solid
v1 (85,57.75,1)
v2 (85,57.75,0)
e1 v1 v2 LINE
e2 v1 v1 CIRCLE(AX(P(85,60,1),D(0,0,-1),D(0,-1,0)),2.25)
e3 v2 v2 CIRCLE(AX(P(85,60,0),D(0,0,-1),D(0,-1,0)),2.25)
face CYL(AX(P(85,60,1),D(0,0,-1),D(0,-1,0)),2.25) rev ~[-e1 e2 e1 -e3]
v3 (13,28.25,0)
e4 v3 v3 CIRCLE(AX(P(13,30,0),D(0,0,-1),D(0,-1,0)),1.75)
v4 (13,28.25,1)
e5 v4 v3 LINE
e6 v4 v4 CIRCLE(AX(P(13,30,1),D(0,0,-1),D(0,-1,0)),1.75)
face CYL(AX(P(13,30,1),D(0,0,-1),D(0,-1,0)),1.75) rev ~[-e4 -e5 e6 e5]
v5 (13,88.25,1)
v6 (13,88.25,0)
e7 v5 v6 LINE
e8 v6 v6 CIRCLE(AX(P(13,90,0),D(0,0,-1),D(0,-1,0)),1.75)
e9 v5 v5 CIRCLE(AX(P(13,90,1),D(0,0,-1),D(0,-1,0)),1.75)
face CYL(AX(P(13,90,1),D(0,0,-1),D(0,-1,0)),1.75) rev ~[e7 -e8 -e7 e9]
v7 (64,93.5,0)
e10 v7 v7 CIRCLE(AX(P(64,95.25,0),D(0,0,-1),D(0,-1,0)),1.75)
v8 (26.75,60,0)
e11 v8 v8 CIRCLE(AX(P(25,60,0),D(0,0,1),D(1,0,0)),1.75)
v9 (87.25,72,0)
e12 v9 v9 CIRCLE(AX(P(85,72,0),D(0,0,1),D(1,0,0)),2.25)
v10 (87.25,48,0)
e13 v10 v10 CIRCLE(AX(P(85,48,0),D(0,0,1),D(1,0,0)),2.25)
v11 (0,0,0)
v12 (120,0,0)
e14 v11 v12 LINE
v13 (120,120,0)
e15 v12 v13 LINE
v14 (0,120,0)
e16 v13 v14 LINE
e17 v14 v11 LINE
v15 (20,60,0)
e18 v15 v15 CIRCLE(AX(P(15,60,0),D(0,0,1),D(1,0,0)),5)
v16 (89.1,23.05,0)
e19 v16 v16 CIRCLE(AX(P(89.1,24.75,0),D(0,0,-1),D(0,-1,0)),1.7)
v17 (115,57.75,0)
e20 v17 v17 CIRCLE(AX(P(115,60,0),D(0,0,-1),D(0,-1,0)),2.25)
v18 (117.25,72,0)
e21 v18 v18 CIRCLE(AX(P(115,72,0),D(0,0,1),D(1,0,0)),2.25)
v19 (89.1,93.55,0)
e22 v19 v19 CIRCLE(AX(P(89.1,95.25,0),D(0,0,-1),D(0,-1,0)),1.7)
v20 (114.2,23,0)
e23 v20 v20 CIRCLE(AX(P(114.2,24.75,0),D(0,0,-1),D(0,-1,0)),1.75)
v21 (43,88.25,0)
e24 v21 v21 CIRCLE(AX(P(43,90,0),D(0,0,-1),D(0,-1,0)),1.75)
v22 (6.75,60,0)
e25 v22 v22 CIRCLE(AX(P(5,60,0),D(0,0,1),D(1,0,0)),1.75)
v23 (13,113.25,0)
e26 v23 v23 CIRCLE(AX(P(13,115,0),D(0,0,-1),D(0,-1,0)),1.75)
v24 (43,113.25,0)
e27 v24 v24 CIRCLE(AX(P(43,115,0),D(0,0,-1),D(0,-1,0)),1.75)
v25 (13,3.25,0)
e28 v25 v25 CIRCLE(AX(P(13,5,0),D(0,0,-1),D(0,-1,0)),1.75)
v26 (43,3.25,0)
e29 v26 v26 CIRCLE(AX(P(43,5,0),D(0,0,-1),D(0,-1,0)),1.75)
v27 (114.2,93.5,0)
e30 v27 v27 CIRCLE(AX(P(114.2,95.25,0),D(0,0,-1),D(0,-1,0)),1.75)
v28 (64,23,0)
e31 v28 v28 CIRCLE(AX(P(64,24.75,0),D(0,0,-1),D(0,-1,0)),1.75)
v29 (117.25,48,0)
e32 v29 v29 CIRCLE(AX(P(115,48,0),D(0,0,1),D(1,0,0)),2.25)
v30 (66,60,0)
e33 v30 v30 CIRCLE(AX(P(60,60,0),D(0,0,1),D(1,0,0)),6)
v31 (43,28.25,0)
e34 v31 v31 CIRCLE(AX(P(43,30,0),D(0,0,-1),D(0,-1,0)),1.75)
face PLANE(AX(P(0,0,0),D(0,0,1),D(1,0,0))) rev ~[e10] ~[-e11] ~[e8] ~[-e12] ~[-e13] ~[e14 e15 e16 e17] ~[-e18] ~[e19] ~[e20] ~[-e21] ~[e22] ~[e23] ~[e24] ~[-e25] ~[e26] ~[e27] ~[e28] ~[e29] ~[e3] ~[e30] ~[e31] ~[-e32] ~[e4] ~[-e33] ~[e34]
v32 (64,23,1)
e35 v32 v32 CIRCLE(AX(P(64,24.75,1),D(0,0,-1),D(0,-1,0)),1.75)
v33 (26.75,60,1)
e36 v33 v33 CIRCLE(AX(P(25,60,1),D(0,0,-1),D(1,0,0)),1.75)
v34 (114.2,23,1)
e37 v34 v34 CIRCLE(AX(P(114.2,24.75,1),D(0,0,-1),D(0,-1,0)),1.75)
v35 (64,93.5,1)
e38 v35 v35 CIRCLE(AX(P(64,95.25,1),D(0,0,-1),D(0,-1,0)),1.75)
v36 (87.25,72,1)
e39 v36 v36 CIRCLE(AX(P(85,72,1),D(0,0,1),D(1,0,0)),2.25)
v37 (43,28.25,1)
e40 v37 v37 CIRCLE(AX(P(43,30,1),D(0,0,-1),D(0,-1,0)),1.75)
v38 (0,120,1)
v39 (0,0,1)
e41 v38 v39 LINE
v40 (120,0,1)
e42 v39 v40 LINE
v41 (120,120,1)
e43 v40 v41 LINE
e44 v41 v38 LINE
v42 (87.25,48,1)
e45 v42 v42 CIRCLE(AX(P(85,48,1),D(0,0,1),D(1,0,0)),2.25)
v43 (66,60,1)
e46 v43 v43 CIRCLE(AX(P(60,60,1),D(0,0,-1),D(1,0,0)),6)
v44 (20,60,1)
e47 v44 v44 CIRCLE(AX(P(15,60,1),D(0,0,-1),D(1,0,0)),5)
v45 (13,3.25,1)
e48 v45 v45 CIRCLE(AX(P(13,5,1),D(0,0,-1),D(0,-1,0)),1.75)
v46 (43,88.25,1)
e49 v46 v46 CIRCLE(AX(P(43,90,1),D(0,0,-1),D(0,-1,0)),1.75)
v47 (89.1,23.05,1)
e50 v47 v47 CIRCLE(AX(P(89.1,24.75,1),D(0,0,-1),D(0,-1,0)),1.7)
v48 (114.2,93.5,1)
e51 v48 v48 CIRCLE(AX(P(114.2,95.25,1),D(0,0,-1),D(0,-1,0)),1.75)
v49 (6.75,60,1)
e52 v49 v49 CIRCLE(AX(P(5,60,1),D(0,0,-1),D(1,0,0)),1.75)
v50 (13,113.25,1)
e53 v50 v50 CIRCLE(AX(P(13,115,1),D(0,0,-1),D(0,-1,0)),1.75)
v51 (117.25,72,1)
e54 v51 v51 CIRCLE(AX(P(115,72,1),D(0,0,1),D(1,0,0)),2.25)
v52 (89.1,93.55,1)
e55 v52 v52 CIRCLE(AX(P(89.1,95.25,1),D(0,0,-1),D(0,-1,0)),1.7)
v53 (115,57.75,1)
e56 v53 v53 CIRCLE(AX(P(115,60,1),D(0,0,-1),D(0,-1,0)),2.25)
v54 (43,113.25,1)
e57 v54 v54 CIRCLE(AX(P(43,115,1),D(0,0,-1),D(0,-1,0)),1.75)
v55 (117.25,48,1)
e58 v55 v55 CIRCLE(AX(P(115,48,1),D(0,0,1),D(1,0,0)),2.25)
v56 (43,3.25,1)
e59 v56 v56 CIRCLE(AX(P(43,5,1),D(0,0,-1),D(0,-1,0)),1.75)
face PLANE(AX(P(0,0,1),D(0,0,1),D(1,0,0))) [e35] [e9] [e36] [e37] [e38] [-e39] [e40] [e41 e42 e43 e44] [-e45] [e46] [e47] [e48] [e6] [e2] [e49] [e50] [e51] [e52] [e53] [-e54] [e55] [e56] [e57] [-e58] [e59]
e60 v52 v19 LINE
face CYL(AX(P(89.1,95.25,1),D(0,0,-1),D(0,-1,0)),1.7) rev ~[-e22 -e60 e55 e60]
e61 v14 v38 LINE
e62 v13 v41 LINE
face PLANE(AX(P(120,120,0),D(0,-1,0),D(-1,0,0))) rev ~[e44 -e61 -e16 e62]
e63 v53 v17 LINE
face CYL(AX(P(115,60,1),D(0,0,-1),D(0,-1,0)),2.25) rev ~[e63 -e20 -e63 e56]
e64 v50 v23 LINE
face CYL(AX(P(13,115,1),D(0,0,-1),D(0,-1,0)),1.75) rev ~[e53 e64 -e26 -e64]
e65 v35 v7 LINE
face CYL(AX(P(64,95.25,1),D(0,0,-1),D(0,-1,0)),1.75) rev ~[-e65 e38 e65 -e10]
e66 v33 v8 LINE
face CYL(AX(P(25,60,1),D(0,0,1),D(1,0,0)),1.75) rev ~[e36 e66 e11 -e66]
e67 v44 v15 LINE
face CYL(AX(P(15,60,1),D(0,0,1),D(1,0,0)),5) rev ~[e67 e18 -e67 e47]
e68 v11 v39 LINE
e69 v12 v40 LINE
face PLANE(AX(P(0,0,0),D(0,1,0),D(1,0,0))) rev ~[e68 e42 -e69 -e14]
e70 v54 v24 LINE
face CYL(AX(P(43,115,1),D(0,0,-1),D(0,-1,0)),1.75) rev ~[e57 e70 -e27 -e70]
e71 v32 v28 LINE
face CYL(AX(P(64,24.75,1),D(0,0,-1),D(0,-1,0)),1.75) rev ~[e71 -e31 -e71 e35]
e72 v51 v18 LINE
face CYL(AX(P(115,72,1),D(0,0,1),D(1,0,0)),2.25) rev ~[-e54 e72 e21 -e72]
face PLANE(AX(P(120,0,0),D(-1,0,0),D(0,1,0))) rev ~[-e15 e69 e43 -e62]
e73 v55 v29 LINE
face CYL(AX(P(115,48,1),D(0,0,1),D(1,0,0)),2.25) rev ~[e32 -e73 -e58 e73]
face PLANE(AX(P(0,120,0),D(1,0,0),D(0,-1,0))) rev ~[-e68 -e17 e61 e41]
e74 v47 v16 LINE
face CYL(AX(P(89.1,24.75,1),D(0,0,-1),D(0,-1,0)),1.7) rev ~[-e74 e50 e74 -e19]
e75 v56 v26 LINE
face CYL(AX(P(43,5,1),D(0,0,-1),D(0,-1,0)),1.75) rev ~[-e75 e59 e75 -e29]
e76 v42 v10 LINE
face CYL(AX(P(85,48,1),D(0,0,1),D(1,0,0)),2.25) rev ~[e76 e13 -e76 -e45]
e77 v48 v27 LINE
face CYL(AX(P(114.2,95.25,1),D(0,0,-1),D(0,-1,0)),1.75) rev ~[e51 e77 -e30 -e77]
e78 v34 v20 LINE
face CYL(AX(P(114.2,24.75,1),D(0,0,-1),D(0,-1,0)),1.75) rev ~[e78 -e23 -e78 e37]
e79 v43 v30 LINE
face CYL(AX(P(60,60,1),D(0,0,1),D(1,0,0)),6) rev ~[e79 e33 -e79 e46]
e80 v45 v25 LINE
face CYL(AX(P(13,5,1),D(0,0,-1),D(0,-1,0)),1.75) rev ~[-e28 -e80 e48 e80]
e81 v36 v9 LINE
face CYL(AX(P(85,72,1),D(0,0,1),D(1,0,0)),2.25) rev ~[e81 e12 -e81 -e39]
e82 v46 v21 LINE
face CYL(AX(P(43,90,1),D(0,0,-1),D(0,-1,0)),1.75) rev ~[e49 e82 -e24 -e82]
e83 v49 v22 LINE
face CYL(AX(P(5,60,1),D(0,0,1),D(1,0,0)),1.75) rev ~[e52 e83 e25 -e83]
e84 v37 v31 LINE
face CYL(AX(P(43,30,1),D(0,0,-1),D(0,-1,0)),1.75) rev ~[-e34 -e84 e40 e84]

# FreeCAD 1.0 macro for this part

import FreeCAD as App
import Part
import Sketcher

V = App.Vector
Q = App.Units.Quantity

doc = App.newDocument("Part")
body = doc.addObject("PartDesign::Body", "Body")

sketch1 = doc.addObject("Sketcher::SketchObject", "Sketch")
body.addObject(sketch1)
sketch1.AttachmentSupport = (doc.XY_Plane, [""])
sketch1.MapMode = "FlatFace"
sketch1.addGeometry([
    Part.LineSegment(V(0, 120, 0), V(0, 0, 0)),
    Part.LineSegment(V(0, 0, 0), V(120, 0, 0)),
    Part.LineSegment(V(120, 0, 0), V(120, 120, 0)),
    Part.LineSegment(V(120, 120, 0), V(0, 120, 0)),
], False)
sketch1.addConstraint([
    Sketcher.Constraint("Coincident", 0, 2, 1, 1),
    Sketcher.Constraint("Coincident", 1, 2, 2, 1),
    Sketcher.Constraint("Coincident", 2, 2, 3, 1),
    Sketcher.Constraint("Coincident", 3, 2, 0, 1),
    Sketcher.Constraint("Vertical", 0),
    Sketcher.Constraint("Horizontal", 1),
    Sketcher.Constraint("Vertical", 2),
    Sketcher.Constraint("Horizontal", 3),
    Sketcher.Constraint("Coincident", 0, 2, -1, 1),
    Sketcher.Constraint("Equal", 3, 0),
    Sketcher.Constraint("DistanceX", 1, 1, 1, 2, Q("120 mm")),
])
pad1 = doc.addObject("PartDesign::Pad", "Pad")
body.addObject(pad1)
pad1.Profile = sketch1
pad1.Length = 1

sketch2 = doc.addObject("Sketcher::SketchObject", "Sketch001")
body.addObject(sketch2)
sketch2.AttachmentSupport = (doc.XY_Plane, [""])
sketch2.MapMode = "FlatFace"
sketch2.AttachmentOffset = App.Placement(V(0, 0, 1), App.Rotation())
sketch2.addGeometry([
    Part.Circle(V(5, 60, 0), V(0, 0, 1), 1.8),
    Part.Circle(V(60, 60, 0), V(0, 0, 1), 6),
    Part.Circle(V(15, 60, 0), V(0, 0, 1), 5),
    Part.Circle(V(25, 60, 0), V(0, 0, 1), 1.8),
    Part.Circle(V(115, 95.2, 0), V(0, 0, 1), 1.5),
    Part.Circle(V(85, 95.2, 0), V(0, 0, 1), 1.5),
], False)
sketch2.addConstraint([
    Sketcher.Constraint("Equal", 0, 3),
    Sketcher.Constraint("Equal", 4, 5),
    Sketcher.Constraint("Horizontal", 0, 3, 1, 3),
    Sketcher.Constraint("Horizontal", 1, 3, 2, 3),
    Sketcher.Constraint("Horizontal", 2, 3, 3, 3),
    Sketcher.Constraint("Horizontal", 4, 3, 5, 3),
    Sketcher.Constraint("Diameter", 1, Q("12 mm")),
    Sketcher.Constraint("Diameter", 2, Q("10 mm")),
    Sketcher.Constraint("Diameter", 4, Q("3 mm")),
    Sketcher.Constraint("Diameter", 0, Q("3.5 mm")),
    Sketcher.Constraint("DistanceX", -1, 1, 0, 3, Q("5 mm")),
    Sketcher.Constraint("DistanceX", -1, 1, 2, 3, Q("15 mm")),
    Sketcher.Constraint("DistanceX", 2, 3, 3, 3, Q("10 mm")),
    Sketcher.Constraint("DistanceX", 5, 3, 4, 3, Q("30 mm")),
    Sketcher.Constraint("DistanceY", -1, 1, 0, 3, Q("60 mm")),
    Sketcher.Constraint("DistanceX", -1, 1, 1, 3, Q("60 mm")),
    Sketcher.Constraint("DistanceX", -1, 1, 4, 3, Q("115 mm")),
    Sketcher.Constraint("DistanceY", -1, 1, 4, 3, Q("95.25 mm")),
])
pocket1 = doc.addObject("PartDesign::Pocket", "Pocket")
body.addObject(pocket1)
pocket1.Profile = sketch2
pocket1.Type = "ThroughAll"

sketch3 = doc.addObject("Sketcher::SketchObject", "Sketch002")
body.addObject(sketch3)
sketch3.AttachmentSupport = (doc.XY_Plane, [""])
sketch3.MapMode = "FlatFace"
sketch3.AttachmentOffset = App.Placement(V(0, 0, 1), App.Rotation())
sketch3.addGeometry([
    Part.Circle(V(13, 115, 0), V(0, 0, 1), 1.8),
    Part.Circle(V(43, 115, 0), V(0, 0, 1), 1.8),
    Part.Circle(V(13, 90, 0), V(0, 0, 1), 1.8),
    Part.Circle(V(43, 90, 0), V(0, 0, 1), 1.8),
    Part.Circle(V(13, 5, 0), V(0, 0, 1), 1.8),
    Part.Circle(V(43, 5, 0), V(0, 0, 1), 1.8),
    Part.Circle(V(43, 30, 0), V(0, 0, 1), 1.8),
    Part.Circle(V(13, 30, 0), V(0, 0, 1), 1.8),
], False)
sketch3.addConstraint([
    Sketcher.Constraint("Equal", 0, 1),
    Sketcher.Constraint("Equal", 1, 2),
    Sketcher.Constraint("Equal", 2, 3),
    Sketcher.Constraint("Equal", 3, 4),
    Sketcher.Constraint("Equal", 4, 5),
    Sketcher.Constraint("Equal", 5, 6),
    Sketcher.Constraint("Equal", 6, 7),
    Sketcher.Constraint("Horizontal", 0, 3, 1, 3),
    Sketcher.Constraint("Horizontal", 2, 3, 3, 3),
    Sketcher.Constraint("Horizontal", 4, 3, 5, 3),
    Sketcher.Constraint("Horizontal", 6, 3, 7, 3),
    Sketcher.Constraint("Vertical", 0, 3, 2, 3),
    Sketcher.Constraint("Vertical", 1, 3, 3, 3),
    Sketcher.Constraint("Vertical", 2, 3, 4, 3),
    Sketcher.Constraint("Vertical", 3, 3, 5, 3),
    Sketcher.Constraint("Vertical", 5, 3, 6, 3),
    Sketcher.Constraint("Vertical", 4, 3, 7, 3),
    Sketcher.Constraint("Diameter", 0, Q("3.5 mm")),
    Sketcher.Constraint("DistanceX", -1, 1, 0, 3, Q("13 mm")),
    Sketcher.Constraint("DistanceY", -1, 1, 0, 3, Q("115 mm")),
    Sketcher.Constraint("DistanceX", -1, 1, 1, 3, Q("43 mm")),
    Sketcher.Constraint("DistanceY", -1, 1, 2, 3, Q("90 mm")),
    Sketcher.Constraint("DistanceY", -1, 1, 4, 3, Q("5 mm")),
    Sketcher.Constraint("DistanceY", -1, 1, 6, 3, Q("30 mm")),
])
doc.recompute()
hole = doc.addObject("PartDesign::Hole", "Hole")
body.addObject(hole)
hole.Profile = sketch3
hole.ThreadType = "None"
hole.Diameter = 3.5
hole.DepthType = "ThroughAll"

sketch4 = doc.addObject("Sketcher::SketchObject", "Sketch003")
body.addObject(sketch4)
sketch4.AttachmentSupport = (doc.XY_Plane, [""])
sketch4.MapMode = "FlatFace"
sketch4.AttachmentOffset = App.Placement(V(0, 0, 1), App.Rotation())
sketch4.addGeometry([
    Part.Circle(V(85, 95.2, 0), V(0, 0, 1), 1.5),
    Part.Circle(V(115, 95.2, 0), V(0, 0, 1), 1.5),
], False)
sketch4.addConstraint([
    Sketcher.Constraint("Equal", 0, 1),
    Sketcher.Constraint("Horizontal", 0, 3, 1, 3),
    Sketcher.Constraint("Diameter", 0, Q("3 mm")),
    Sketcher.Constraint("DistanceX", -1, 1, 0, 3, Q("85 mm")),
    Sketcher.Constraint("DistanceX", -1, 1, 1, 3, Q("115 mm")),
    Sketcher.Constraint("DistanceY", -1, 1, 0, 3, Q("95.25 mm")),
])
pad2 = doc.addObject("PartDesign::Pad", "Pad001")
body.addObject(pad2)
pad2.Profile = sketch4
pad2.Length = 1
pad2.Reversed = True

sketch5 = doc.addObject("Sketcher::SketchObject", "Sketch004")
body.addObject(sketch5)
sketch5.AttachmentSupport = (doc.XY_Plane, [""])
sketch5.MapMode = "FlatFace"
sketch5.AttachmentOffset = App.Placement(V(0, 0, 1), App.Rotation())
sketch5.addGeometry([
    Part.Circle(V(64, 24.8, 0), V(0, 0, 1), 1.8),
    Part.Circle(V(114.2, 24.8, 0), V(0, 0, 1), 1.8),
    Part.Circle(V(85, 48, 0), V(0, 0, 1), 1.8),
    Part.Circle(V(115, 48, 0), V(0, 0, 1), 1.8),
    Part.Circle(V(85, 72, 0), V(0, 0, 1), 1.8),
    Part.Circle(V(115, 72, 0), V(0, 0, 1), 1.8),
    Part.Circle(V(64, 95.2, 0), V(0, 0, 1), 1.8),
    Part.Circle(V(114.2, 95.2, 0), V(0, 0, 1), 1.8),
], False)
sketch5.addConstraint([
    Sketcher.Constraint("Equal", 0, 1),
    Sketcher.Constraint("Equal", 1, 2),
    Sketcher.Constraint("Equal", 2, 3),
    Sketcher.Constraint("Equal", 3, 4),
    Sketcher.Constraint("Equal", 4, 5),
    Sketcher.Constraint("Equal", 5, 6),
    Sketcher.Constraint("Equal", 6, 7),
    Sketcher.Constraint("Horizontal", 0, 3, 1, 3),
    Sketcher.Constraint("Horizontal", 2, 3, 3, 3),
    Sketcher.Constraint("Horizontal", 4, 3, 5, 3),
    Sketcher.Constraint("Horizontal", 6, 3, 7, 3),
    Sketcher.Constraint("Vertical", 2, 3, 4, 3),
    Sketcher.Constraint("Vertical", 3, 3, 5, 3),
    Sketcher.Constraint("Vertical", 0, 3, 6, 3),
    Sketcher.Constraint("Vertical", 1, 3, 7, 3),
    Sketcher.Constraint("Diameter", 0, Q("3.5 mm")),
    Sketcher.Constraint("DistanceX", -1, 1, 0, 3, Q("64 mm")),
    Sketcher.Constraint("DistanceX", -1, 1, 2, 3, Q("85 mm")),
    Sketcher.Constraint("DistanceY", -1, 1, 2, 3, Q("48 mm")),
    Sketcher.Constraint("DistanceX", -1, 1, 3, 3, Q("115 mm")),
    Sketcher.Constraint("DistanceY", -1, 1, 4, 3, Q("72 mm")),
    Sketcher.Constraint("DistanceX", -1, 1, 1, 3, Q("114.2 mm")),
    Sketcher.Constraint("DistanceY", 0, 3, 6, 3, Q("70.5 mm")),
    Sketcher.Constraint("DistanceY", -1, 1, 0, 3, Q("24.75 mm")),
])
doc.recompute()
hole2 = doc.addObject("PartDesign::Hole", "Hole001")
body.addObject(hole2)
hole2.Profile = sketch5
hole2.ThreadType = "None"
hole2.Diameter = 3.5
hole2.DepthType = "ThroughAll"

sketch6 = doc.addObject("Sketcher::SketchObject", "Sketch005")
body.addObject(sketch6)
sketch6.AttachmentSupport = (doc.XY_Plane, [""])
sketch6.MapMode = "FlatFace"
sketch6.AttachmentOffset = App.Placement(V(0, 0, 1), App.Rotation())
sketch6.addGeometry([
    Part.Circle(V(85, 72, 0), V(0, 0, 1), 2.2),
    Part.Circle(V(115, 72, 0), V(0, 0, 1), 2.2),
    Part.Circle(V(115, 48, 0), V(0, 0, 1), 2.2),
    Part.Circle(V(85, 48, 0), V(0, 0, 1), 2.2),
], False)
sketch6.addConstraint([
    Sketcher.Constraint("Equal", 0, 1),
    Sketcher.Constraint("Equal", 1, 2),
    Sketcher.Constraint("Equal", 2, 3),
    Sketcher.Constraint("Horizontal", 0, 3, 1, 3),
    Sketcher.Constraint("Horizontal", 2, 3, 3, 3),
    Sketcher.Constraint("Vertical", 1, 3, 2, 3),
    Sketcher.Constraint("Vertical", 0, 3, 3, 3),
    Sketcher.Constraint("Diameter", 0, Q("4.5 mm")),
    Sketcher.Constraint("DistanceX", -1, 1, 0, 3, Q("85 mm")),
    Sketcher.Constraint("DistanceY", -1, 1, 0, 3, Q("72 mm")),
    Sketcher.Constraint("DistanceX", -1, 1, 1, 3, Q("115 mm")),
    Sketcher.Constraint("DistanceY", -1, 1, 2, 3, Q("48 mm")),
])
pocket2 = doc.addObject("PartDesign::Pocket", "Pocket001")
body.addObject(pocket2)
pocket2.Profile = sketch6
pocket2.Length = 1

sketch7 = doc.addObject("Sketcher::SketchObject", "Sketch006")
body.addObject(sketch7)
sketch7.AttachmentSupport = (doc.XY_Plane, [""])
sketch7.MapMode = "FlatFace"
sketch7.AttachmentOffset = App.Placement(V(0, 0, 1), App.Rotation())
sketch7.addGeometry([
    Part.Circle(V(85, 60, 0), V(0, 0, 1), 2.2),
    Part.Circle(V(115, 60, 0), V(0, 0, 1), 2.2),
], False)
sketch7.addConstraint([
    Sketcher.Constraint("Equal", 0, 1),
    Sketcher.Constraint("Horizontal", 0, 3, 1, 3),
    Sketcher.Constraint("Diameter", 0, Q("4.5 mm")),
    Sketcher.Constraint("DistanceX", -1, 1, 0, 3, Q("85 mm")),
    Sketcher.Constraint("DistanceY", -1, 1, 0, 3, Q("60 mm")),
    Sketcher.Constraint("DistanceX", -1, 1, 1, 3, Q("115 mm")),
])
doc.recompute()
hole3 = doc.addObject("PartDesign::Hole", "Hole002")
body.addObject(hole3)
hole3.Profile = sketch7
hole3.ThreadType = "None"
hole3.Diameter = 4.5
hole3.DepthType = "Dimension"
hole3.Depth = 1
hole3.DrillPoint = "Flat"

sketch8 = doc.addObject("Sketcher::SketchObject", "Sketch007")
body.addObject(sketch8)
sketch8.AttachmentSupport = (doc.XY_Plane, [""])
sketch8.MapMode = "FlatFace"
sketch8.AttachmentOffset = App.Placement(V(0, 0, 1), App.Rotation())
sketch8.addGeometry([
    Part.Circle(V(89.1, 95.2, 0), V(0, 0, 1), 1.7),
    Part.Circle(V(89.1, 24.8, 0), V(0, 0, 1), 1.7),
], False)
sketch8.addConstraint([
    Sketcher.Constraint("Equal", 0, 1),
    Sketcher.Constraint("Vertical", 0, 3, 1, 3),
    Sketcher.Constraint("Diameter", 0, Q("3.4 mm")),
    Sketcher.Constraint("DistanceX", -1, 1, 0, 3, Q("89.1 mm")),
    Sketcher.Constraint("DistanceY", 1, 3, 0, 3, Q("70.5 mm")),
    Sketcher.Constraint("DistanceY", -1, 1, 0, 3, Q("95.25 mm")),
])
doc.recompute()
hole4 = doc.addObject("PartDesign::Hole", "Hole003")
body.addObject(hole4)
hole4.Profile = sketch8
hole4.ThreadType = "None"
hole4.Diameter = 3.4
hole4.DepthType = "Dimension"
hole4.Depth = 1
hole4.DrillPoint = "Flat"

doc.recompute()
